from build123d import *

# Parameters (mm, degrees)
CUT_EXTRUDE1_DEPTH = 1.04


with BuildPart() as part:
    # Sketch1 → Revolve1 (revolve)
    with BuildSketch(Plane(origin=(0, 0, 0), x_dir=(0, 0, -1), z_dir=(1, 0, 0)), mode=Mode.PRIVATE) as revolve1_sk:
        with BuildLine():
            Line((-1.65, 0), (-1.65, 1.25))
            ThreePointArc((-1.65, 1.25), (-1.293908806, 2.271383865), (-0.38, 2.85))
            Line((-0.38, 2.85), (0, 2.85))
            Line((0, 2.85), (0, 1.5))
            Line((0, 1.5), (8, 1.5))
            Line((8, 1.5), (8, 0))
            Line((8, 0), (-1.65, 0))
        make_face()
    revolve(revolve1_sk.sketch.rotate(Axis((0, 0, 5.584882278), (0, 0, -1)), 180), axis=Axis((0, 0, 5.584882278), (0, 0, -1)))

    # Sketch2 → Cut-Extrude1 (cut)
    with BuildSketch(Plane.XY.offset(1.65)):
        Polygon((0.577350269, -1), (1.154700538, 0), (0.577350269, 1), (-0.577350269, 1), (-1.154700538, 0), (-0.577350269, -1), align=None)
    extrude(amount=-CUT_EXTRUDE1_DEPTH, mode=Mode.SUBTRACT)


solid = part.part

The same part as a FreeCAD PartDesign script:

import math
import FreeCAD as App
import Part
import Sketcher
Q = App.Units.Quantity


def add_polygon(sketch, points):
    """Adds a closed chain of lines whose ends are joined by coincident constraints."""
    first, n = sketch.GeometryCount, len(points)
    for a, b in zip(points, points[1:] + points[:1]):
        sketch.addGeometry(Part.LineSegment(App.Vector(*a, 0), App.Vector(*b, 0)), False)
    for i in range(n):
        sketch.addConstraint(Sketcher.Constraint("Coincident", first + i, 2, first + (i + 1) % n, 1))

doc = App.newDocument("Part")
body = doc.addObject("PartDesign::Body", "Body")

# Sketch on YZ plane
sketch1 = body.newObject("Sketcher::SketchObject", "Sketch")
sketch1.AttachmentSupport = (doc.getObject("YZ_Plane"), [""])
sketch1.MapMode = "FlatFace"
sketch1.addGeometry(Part.LineSegment(App.Vector(1.25, 1.65, 0), App.Vector(0, 1.65, 0)), False)
sketch1.addGeometry(Part.LineSegment(App.Vector(0, 1.65, 0), App.Vector(0, -8, 0)), False)
sketch1.addGeometry(Part.LineSegment(App.Vector(0, -8, 0), App.Vector(1.5, -8, 0)), False)
sketch1.addGeometry(Part.LineSegment(App.Vector(1.5, -8, 0), App.Vector(1.5, 0, 0)), False)
sketch1.addGeometry(Part.LineSegment(App.Vector(1.5, 0, 0), App.Vector(2.85, 0, 0)), False)
sketch1.addGeometry(Part.LineSegment(App.Vector(2.85, 0, 0), App.Vector(2.85, 0.38, 0)), False)
sketch1.addGeometry(Part.ArcOfCircle(Part.Circle(App.Vector(1.25, 0.01, 0), App.Vector(0, 0, 1), 1.64), math.radians(13), math.radians(90)), False)
sketch1.addConstraint(Sketcher.Constraint("Coincident", 0, 2, 1, 1))
sketch1.addConstraint(Sketcher.Constraint("Coincident", 1, 2, 2, 1))
sketch1.addConstraint(Sketcher.Constraint("Coincident", 2, 2, 3, 1))
sketch1.addConstraint(Sketcher.Constraint("Coincident", 3, 2, 4, 1))
sketch1.addConstraint(Sketcher.Constraint("Coincident", 4, 2, 5, 1))
sketch1.addConstraint(Sketcher.Constraint("Coincident", 5, 2, 6, 1))
sketch1.addConstraint(Sketcher.Constraint("Tangent", 6, 2, 0, 1))
sketch1.addConstraint(Sketcher.Constraint("Horizontal", 0))
sketch1.addConstraint(Sketcher.Constraint("Vertical", 1))
sketch1.addConstraint(Sketcher.Constraint("Horizontal", 2))
sketch1.addConstraint(Sketcher.Constraint("Vertical", 3))
sketch1.addConstraint(Sketcher.Constraint("Horizontal", 4))
sketch1.addConstraint(Sketcher.Constraint("Vertical", 5))
sketch1.addConstraint(Sketcher.Constraint("PointOnObject", 0, 2, -2))
sketch1.addConstraint(Sketcher.Constraint("PointOnObject", 3, 2, -1))
sketch1.addConstraint(Sketcher.Constraint("DistanceY", 3, 1, 3, 2, 8.0))
sketch1.addConstraint(Sketcher.Constraint("DistanceX", 2, 1, 2, 2, 1.5))
sketch1.addConstraint(Sketcher.Constraint("DistanceX", 0, 2, 0, 1, 1.25))
sketch1.addConstraint(Sketcher.Constraint("DistanceX", 4, 1, 4, 2, 1.35))
sketch1.addConstraint(Sketcher.Constraint("DistanceY", 1, 2, 1, 1, 9.65))
sketch1.addConstraint(Sketcher.Constraint("DistanceY", 5, 1, 5, 2, 0.38))
revolution = body.newObject("PartDesign::Revolution", "Revolution")
revolution.Profile = sketch1
revolution.ReferenceAxis = (sketch1, ["V_Axis"])
revolution.Angle = 360

# Sketch on XY plane
sketch2 = body.newObject("Sketcher::SketchObject", "Sketch001")
sketch2.AttachmentSupport = (doc.getObject("XY_Plane"), [""])
sketch2.MapMode = "FlatFace"
sketch2.AttachmentOffset = App.Placement(App.Vector(0, 0, 1.65), App.Rotation())
add_polygon(sketch2, [(0.6, -1), (1.2, 0), (0.6, 1), (-0.6, 1), (-1.2, 0), (-0.6, -1)])  # lines 0-5
sketch2.addConstraint(Sketcher.Constraint("Horizontal", 2))
sketch2.addConstraint(Sketcher.Constraint("Horizontal", 5))
sketch2.addConstraint(Sketcher.Constraint("Symmetric", 0, 2, 3, 2, -1, 1))
sketch2.addConstraint(Sketcher.Constraint("Symmetric", 1, 2, 4, 2, -1, 1))
sketch2.addConstraint(Sketcher.Constraint("PointOnObject", 0, 2, -1))
sketch2.addConstraint(Sketcher.Constraint("Parallel", 0, 3))
sketch2.addConstraint(Sketcher.Constraint("Vertical", 2, 2, 4, 2))
sketch2.addConstraint(Sketcher.Constraint("Angle", 0, Q("60 deg")))
sketch2.addConstraint(Sketcher.Constraint("DistanceY", -1, 1, 1, 2, 1.0))
sketch2.addConstraint(Sketcher.Constraint("DistanceX", 2, 2, 2, 1, 1.154701))
pocket1 = body.newObject("PartDesign::Pocket", "Pocket")
pocket1.Profile = sketch2
pocket1.Length = 1.04

doc.recompute()
